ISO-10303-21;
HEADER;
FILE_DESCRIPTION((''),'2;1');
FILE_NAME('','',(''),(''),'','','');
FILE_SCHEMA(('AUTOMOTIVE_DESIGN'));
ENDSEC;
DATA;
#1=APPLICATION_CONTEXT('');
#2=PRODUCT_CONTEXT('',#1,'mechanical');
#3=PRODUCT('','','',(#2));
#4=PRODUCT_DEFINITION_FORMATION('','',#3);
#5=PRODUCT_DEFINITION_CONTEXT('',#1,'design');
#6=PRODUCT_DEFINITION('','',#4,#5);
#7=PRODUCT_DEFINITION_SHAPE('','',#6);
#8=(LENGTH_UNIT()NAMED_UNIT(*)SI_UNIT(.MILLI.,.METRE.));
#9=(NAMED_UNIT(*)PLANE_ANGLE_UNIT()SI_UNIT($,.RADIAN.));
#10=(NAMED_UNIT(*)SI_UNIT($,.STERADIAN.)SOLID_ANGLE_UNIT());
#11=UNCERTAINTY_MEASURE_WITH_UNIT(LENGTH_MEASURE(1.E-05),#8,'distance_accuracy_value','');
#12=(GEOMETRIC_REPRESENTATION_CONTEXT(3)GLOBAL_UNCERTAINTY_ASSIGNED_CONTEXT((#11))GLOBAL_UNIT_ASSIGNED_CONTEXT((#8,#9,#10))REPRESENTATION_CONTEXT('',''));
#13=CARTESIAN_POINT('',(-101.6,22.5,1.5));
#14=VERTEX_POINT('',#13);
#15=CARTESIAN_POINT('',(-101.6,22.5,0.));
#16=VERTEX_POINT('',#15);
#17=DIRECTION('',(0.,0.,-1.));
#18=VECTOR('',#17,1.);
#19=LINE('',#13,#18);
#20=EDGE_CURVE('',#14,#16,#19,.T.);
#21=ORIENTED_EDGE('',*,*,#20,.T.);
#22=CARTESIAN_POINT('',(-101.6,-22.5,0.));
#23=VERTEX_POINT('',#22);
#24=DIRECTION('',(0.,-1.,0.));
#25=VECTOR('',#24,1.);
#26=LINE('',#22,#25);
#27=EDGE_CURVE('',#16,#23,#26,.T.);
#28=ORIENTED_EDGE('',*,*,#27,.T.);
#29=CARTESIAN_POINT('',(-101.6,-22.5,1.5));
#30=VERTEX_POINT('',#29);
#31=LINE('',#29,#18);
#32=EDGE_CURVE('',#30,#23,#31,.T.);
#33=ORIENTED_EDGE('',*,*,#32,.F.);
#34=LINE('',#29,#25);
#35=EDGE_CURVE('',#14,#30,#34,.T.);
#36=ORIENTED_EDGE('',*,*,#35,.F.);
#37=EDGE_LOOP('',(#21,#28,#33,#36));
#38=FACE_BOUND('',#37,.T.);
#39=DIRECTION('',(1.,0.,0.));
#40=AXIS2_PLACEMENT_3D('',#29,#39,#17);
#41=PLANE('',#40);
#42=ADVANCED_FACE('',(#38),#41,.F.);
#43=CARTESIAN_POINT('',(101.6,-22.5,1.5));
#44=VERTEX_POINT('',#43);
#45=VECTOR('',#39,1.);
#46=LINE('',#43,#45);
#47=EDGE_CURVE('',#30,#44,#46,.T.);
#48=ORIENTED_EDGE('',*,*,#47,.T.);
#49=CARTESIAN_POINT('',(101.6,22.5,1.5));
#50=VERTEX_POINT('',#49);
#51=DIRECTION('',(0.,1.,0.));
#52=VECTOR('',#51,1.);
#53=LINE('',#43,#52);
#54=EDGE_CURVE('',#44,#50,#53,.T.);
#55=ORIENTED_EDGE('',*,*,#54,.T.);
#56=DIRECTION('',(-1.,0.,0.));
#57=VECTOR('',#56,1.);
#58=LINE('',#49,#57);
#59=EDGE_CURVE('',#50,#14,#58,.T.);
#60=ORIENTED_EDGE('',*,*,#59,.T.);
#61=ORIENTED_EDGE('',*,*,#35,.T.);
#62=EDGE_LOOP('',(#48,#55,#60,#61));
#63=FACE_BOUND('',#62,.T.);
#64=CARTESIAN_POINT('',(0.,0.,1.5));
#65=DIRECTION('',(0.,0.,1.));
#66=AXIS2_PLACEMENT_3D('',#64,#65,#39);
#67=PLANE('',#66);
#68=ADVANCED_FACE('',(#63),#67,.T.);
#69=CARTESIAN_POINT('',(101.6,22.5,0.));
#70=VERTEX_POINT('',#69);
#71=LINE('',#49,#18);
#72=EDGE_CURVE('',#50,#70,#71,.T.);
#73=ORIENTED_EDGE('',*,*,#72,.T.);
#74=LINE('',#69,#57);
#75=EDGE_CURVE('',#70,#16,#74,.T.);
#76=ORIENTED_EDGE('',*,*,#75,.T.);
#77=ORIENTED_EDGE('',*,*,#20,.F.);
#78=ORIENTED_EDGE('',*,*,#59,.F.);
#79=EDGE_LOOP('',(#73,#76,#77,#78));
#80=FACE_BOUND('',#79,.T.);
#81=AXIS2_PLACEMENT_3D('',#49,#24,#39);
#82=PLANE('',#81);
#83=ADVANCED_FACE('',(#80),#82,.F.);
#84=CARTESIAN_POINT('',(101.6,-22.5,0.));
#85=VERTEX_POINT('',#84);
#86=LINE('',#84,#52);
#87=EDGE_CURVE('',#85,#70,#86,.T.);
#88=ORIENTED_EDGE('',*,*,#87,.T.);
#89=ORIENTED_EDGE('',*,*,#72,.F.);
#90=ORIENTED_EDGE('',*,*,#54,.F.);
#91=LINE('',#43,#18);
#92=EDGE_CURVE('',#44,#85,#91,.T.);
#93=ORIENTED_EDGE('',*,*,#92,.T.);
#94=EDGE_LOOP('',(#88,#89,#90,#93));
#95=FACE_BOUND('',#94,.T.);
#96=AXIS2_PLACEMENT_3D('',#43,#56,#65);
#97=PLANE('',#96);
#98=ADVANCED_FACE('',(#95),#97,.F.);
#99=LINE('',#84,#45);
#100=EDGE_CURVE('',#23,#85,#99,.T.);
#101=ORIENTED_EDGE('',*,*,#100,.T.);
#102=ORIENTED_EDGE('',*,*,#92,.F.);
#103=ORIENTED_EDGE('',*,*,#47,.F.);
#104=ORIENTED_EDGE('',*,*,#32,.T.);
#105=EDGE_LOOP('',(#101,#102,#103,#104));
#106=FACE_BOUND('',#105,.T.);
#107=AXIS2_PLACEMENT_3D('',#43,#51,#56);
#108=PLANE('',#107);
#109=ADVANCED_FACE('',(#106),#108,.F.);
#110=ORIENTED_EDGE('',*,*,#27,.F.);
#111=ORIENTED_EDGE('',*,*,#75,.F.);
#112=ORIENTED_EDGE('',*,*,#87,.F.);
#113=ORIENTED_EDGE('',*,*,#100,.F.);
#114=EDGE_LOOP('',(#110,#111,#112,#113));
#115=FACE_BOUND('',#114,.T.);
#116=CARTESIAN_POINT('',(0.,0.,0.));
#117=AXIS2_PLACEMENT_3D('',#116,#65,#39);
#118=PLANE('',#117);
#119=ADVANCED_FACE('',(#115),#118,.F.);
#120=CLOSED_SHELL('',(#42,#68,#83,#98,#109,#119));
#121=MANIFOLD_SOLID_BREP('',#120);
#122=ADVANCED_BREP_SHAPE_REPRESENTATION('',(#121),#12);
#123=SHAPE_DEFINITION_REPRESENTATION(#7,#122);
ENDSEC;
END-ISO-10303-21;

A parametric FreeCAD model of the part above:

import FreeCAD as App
import Part
import Sketcher


def add_polygon(sketch, points):
    """Adds a closed chain of lines whose ends are joined by coincident constraints."""
    first, n = sketch.GeometryCount, len(points)
    for a, b in zip(points, points[1:] + points[:1]):
        sketch.addGeometry(Part.LineSegment(App.Vector(*a, 0), App.Vector(*b, 0)), False)
    for i in range(n):
        sketch.addConstraint(Sketcher.Constraint("Coincident", first + i, 2, first + (i + 1) % n, 1))

doc = App.newDocument("Part")
body = doc.addObject("PartDesign::Body", "Body")

sketch1 = doc.addObject("Sketcher::SketchObject", "Sketch")
body.addObject(sketch1)
sketch1.AttachmentSupport = (doc.XY_Plane, [""])
sketch1.MapMode = "FlatFace"
add_polygon(sketch1, [(-102, 22), (-102, -22), (102, -22), (102, 22)])
sketch1.addConstraint(Sketcher.Constraint("Vertical", 0))
sketch1.addConstraint(Sketcher.Constraint("Horizontal", 1))
sketch1.addConstraint(Sketcher.Constraint("Vertical", 2))
sketch1.addConstraint(Sketcher.Constraint("Horizontal", 3))
sketch1.addConstraint(Sketcher.Constraint("Symmetric", 0, 2, 2, 2, -1, 1))
sketch1.addConstraint(Sketcher.Constraint("DistanceY", 0, 2, 0, 1, 45.0))
sketch1.addConstraint(Sketcher.Constraint("DistanceX", 1, 1, 1, 2, 203.2))
pad1 = doc.addObject("PartDesign::Pad", "Pad")
body.addObject(pad1)
pad1.Profile = sketch1
pad1.Length = 1.5

doc.recompute()
